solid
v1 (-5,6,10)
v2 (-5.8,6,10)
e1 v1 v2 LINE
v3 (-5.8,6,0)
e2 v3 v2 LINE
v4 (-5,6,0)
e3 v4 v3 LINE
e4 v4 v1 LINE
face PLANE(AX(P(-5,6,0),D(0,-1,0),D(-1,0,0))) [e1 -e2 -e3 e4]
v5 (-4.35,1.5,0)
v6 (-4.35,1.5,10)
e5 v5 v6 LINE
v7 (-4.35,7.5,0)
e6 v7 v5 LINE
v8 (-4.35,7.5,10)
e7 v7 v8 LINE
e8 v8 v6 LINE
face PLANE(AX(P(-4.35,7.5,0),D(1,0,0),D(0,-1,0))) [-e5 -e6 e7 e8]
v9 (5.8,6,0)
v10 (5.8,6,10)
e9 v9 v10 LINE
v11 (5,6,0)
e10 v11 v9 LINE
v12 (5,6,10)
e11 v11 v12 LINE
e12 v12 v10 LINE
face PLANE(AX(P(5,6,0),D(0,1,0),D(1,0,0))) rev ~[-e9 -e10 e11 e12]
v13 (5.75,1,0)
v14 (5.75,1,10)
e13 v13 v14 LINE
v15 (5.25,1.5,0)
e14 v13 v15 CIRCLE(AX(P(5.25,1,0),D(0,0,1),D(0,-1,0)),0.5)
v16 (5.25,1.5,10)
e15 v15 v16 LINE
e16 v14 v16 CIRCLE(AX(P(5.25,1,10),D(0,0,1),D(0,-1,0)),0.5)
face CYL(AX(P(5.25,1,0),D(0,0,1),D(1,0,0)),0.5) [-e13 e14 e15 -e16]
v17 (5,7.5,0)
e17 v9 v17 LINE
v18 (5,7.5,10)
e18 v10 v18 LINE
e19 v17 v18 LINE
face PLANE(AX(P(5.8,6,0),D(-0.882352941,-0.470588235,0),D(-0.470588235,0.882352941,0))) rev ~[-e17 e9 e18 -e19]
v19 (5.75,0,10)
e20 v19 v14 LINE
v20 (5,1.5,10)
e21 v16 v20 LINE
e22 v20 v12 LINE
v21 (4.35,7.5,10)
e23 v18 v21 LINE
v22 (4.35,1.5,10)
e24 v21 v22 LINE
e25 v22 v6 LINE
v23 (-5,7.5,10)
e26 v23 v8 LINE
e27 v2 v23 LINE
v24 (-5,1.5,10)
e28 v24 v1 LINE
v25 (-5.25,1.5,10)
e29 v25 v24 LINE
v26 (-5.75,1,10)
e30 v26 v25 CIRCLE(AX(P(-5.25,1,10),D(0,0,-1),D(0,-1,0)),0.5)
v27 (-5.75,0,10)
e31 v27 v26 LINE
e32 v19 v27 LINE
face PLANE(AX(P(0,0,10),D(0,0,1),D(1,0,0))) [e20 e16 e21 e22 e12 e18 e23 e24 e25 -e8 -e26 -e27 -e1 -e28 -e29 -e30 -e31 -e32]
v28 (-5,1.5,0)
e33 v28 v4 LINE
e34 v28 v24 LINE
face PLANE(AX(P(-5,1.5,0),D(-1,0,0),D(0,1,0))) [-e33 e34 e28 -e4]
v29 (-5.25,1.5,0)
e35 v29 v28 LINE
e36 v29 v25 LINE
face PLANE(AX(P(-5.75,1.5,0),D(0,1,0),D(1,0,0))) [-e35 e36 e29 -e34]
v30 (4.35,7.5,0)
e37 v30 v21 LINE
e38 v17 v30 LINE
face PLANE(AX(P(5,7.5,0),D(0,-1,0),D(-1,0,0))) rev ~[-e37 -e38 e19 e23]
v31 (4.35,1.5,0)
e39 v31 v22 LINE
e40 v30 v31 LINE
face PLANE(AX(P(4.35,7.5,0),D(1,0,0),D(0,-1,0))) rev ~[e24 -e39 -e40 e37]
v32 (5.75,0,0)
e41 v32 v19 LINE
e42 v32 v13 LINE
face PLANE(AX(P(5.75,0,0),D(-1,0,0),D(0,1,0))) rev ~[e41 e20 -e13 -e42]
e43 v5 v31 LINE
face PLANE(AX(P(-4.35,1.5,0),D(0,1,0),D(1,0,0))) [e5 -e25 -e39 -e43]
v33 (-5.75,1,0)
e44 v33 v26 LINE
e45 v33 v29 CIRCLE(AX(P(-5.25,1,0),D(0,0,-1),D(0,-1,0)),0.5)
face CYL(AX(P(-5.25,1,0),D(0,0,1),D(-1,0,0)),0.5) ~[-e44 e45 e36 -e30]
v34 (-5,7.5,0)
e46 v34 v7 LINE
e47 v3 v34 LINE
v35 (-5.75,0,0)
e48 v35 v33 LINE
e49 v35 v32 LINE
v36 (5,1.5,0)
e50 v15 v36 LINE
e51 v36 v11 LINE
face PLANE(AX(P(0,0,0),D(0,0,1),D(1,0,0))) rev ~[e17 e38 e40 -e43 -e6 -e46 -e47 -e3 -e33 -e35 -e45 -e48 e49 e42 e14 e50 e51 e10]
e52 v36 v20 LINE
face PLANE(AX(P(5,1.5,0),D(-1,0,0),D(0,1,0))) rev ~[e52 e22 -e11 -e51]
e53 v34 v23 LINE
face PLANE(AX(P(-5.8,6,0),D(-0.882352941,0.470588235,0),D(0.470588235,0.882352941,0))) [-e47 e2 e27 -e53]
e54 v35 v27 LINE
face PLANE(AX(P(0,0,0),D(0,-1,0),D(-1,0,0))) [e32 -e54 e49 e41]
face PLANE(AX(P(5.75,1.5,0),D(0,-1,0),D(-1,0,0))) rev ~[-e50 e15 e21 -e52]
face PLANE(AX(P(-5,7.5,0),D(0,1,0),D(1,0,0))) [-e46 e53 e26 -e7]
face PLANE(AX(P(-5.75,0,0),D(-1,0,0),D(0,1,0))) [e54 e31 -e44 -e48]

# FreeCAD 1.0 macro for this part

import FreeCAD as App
import Part
import Sketcher
from FreeCAD import Vector


def edges_at(feature, points):
    """Names of the edges that pass closest to the given points."""
    edges = feature.Shape.Edges
    near = lambda p: min(range(len(edges)), key=lambda i: edges[i].distToShape(Part.Vertex(*p))[0])
    return sorted({f"Edge{near(p) + 1}" for p in points})

doc = App.newDocument("Part")
body = doc.addObject("PartDesign::Body", "Body")

# Sketch on XY plane
sketch1 = body.newObject("Sketcher::SketchObject", "Sketch")
sketch1.AttachmentSupport = (doc.getObject("XY_Plane"), [""])
sketch1.MapMode = "FlatFace"
sketch1.addGeometry(Part.LineSegment(Vector(-5.8, 0, 0), Vector(5.8, 0, 0)), False)
sketch1.addGeometry(Part.LineSegment(Vector(5.8, 0, 0), Vector(5.8, 1.5, 0)), False)
sketch1.addGeometry(Part.LineSegment(Vector(5.8, 1.5, 0), Vector(5, 1.5, 0)), False)
sketch1.addGeometry(Part.LineSegment(Vector(5, 1.5, 0), Vector(5, 6, 0)), False)
sketch1.addGeometry(Part.LineSegment(Vector(5, 6, 0), Vector(5.8, 6, 0)), False)
sketch1.addGeometry(Part.LineSegment(Vector(5.8, 6, 0), Vector(5, 7.5, 0)), False)
sketch1.addGeometry(Part.LineSegment(Vector(5, 7.5, 0), Vector(4.3, 7.5, 0)), False)
sketch1.addGeometry(Part.LineSegment(Vector(4.3, 7.5, 0), Vector(4.3, 1.5, 0)), False)
sketch1.addGeometry(Part.LineSegment(Vector(4.3, 1.5, 0), Vector(-4.3, 1.5, 0)), False)
sketch1.addGeometry(Part.LineSegment(Vector(-4.3, 1.5, 0), Vector(-4.3, 7.5, 0)), False)
sketch1.addGeometry(Part.LineSegment(Vector(-4.3, 7.5, 0), Vector(-5, 7.5, 0)), False)
sketch1.addGeometry(Part.LineSegment(Vector(-5, 7.5, 0), Vector(-5.8, 6, 0)), False)
sketch1.addGeometry(Part.LineSegment(Vector(-5.8, 6, 0), Vector(-5, 6, 0)), False)
sketch1.addGeometry(Part.LineSegment(Vector(-5, 6, 0), Vector(-5, 1.5, 0)), False)
sketch1.addGeometry(Part.LineSegment(Vector(-5, 1.5, 0), Vector(-5.8, 1.5, 0)), False)
sketch1.addGeometry(Part.LineSegment(Vector(-5.8, 1.5, 0), Vector(-5.8, 0, 0)), False)
sketch1.addConstraint(Sketcher.Constraint("Coincident", 0, 2, 1, 1))
sketch1.addConstraint(Sketcher.Constraint("Coincident", 1, 2, 2, 1))
sketch1.addConstraint(Sketcher.Constraint("Coincident", 2, 2, 3, 1))
sketch1.addConstraint(Sketcher.Constraint("Coincident", 3, 2, 4, 1))
sketch1.addConstraint(Sketcher.Constraint("Coincident", 4, 2, 5, 1))
sketch1.addConstraint(Sketcher.Constraint("Coincident", 5, 2, 6, 1))
sketch1.addConstraint(Sketcher.Constraint("Coincident", 6, 2, 7, 1))
sketch1.addConstraint(Sketcher.Constraint("Coincident", 7, 2, 8, 1))
sketch1.addConstraint(Sketcher.Constraint("Coincident", 8, 2, 9, 1))
sketch1.addConstraint(Sketcher.Constraint("Coincident", 9, 2, 10, 1))
sketch1.addConstraint(Sketcher.Constraint("Coincident", 10, 2, 11, 1))
sketch1.addConstraint(Sketcher.Constraint("Coincident", 11, 2, 12, 1))
sketch1.addConstraint(Sketcher.Constraint("Coincident", 12, 2, 13, 1))
sketch1.addConstraint(Sketcher.Constraint("Coincident", 13, 2, 14, 1))
sketch1.addConstraint(Sketcher.Constraint("Coincident", 14, 2, 15, 1))
sketch1.addConstraint(Sketcher.Constraint("Coincident", 15, 2, 0, 1))
sketch1.addConstraint(Sketcher.Constraint("Horizontal", 0))
sketch1.addConstraint(Sketcher.Constraint("Vertical", 1))
sketch1.addConstraint(Sketcher.Constraint("Horizontal", 2))
sketch1.addConstraint(Sketcher.Constraint("Vertical", 3))
sketch1.addConstraint(Sketcher.Constraint("Horizontal", 4))
sketch1.addConstraint(Sketcher.Constraint("Horizontal", 6))
sketch1.addConstraint(Sketcher.Constraint("Vertical", 7))
sketch1.addConstraint(Sketcher.Constraint("Horizontal", 8))
sketch1.addConstraint(Sketcher.Constraint("Vertical", 9))
sketch1.addConstraint(Sketcher.Constraint("Horizontal", 10))
sketch1.addConstraint(Sketcher.Constraint("Horizontal", 12))
sketch1.addConstraint(Sketcher.Constraint("Vertical", 13))
sketch1.addConstraint(Sketcher.Constraint("Horizontal", 14))
sketch1.addConstraint(Sketcher.Constraint("Vertical", 15))
sketch1.addConstraint(Sketcher.Constraint("Symmetric", 0, 2, 15, 2, -1, 1))
sketch1.addConstraint(Sketcher.Constraint("Symmetric", 6, 2, 9, 2, -2))
sketch1.addConstraint(Sketcher.Constraint("Symmetric", 4, 2, 11, 2, -2))
sketch1.addConstraint(Sketcher.Constraint("Symmetric", 2, 2, 13, 2, -2))
sketch1.addConstraint(Sketcher.Constraint("Horizontal", 2, 2, 7, 2))
sketch1.addConstraint(Sketcher.Constraint("Vertical", 3, 2, 5, 2))
sketch1.addConstraint(Sketcher.Constraint("Vertical", 10, 2, 12, 2))
sketch1.addConstraint(Sketcher.Constraint("DistanceY", 1, 1, 1, 2, 1.5))
sketch1.addConstraint(Sketcher.Constraint("DistanceX", -1, 1, 2, 2, 5.0))
sketch1.addConstraint(Sketcher.Constraint("DistanceX", 6, 2, 6, 1, 0.65))
sketch1.addConstraint(Sketcher.Constraint("DistanceX", -1, 1, 4, 2, 5.8))
sketch1.addConstraint(Sketcher.Constraint("DistanceY", -1, 1, 5, 2, 7.5))
sketch1.addConstraint(Sketcher.Constraint("DistanceY", 3, 2, 5, 2, 1.5))
sketch1.addConstraint(Sketcher.Constraint("DistanceX", -1, 1, 0, 2, 5.75))
pad1 = body.newObject("PartDesign::Pad", "Pad")
pad1.Profile = sketch1
pad1.Length = 10
doc.recompute()

fillet = body.newObject("PartDesign::Fillet", "Fillet")
fillet.Base = (pad1, edges_at(pad1, [(5.75, 1.5, 5), (-5.75, 1.5, 5)]))
fillet.Radius = 0.5

doc.recompute()
